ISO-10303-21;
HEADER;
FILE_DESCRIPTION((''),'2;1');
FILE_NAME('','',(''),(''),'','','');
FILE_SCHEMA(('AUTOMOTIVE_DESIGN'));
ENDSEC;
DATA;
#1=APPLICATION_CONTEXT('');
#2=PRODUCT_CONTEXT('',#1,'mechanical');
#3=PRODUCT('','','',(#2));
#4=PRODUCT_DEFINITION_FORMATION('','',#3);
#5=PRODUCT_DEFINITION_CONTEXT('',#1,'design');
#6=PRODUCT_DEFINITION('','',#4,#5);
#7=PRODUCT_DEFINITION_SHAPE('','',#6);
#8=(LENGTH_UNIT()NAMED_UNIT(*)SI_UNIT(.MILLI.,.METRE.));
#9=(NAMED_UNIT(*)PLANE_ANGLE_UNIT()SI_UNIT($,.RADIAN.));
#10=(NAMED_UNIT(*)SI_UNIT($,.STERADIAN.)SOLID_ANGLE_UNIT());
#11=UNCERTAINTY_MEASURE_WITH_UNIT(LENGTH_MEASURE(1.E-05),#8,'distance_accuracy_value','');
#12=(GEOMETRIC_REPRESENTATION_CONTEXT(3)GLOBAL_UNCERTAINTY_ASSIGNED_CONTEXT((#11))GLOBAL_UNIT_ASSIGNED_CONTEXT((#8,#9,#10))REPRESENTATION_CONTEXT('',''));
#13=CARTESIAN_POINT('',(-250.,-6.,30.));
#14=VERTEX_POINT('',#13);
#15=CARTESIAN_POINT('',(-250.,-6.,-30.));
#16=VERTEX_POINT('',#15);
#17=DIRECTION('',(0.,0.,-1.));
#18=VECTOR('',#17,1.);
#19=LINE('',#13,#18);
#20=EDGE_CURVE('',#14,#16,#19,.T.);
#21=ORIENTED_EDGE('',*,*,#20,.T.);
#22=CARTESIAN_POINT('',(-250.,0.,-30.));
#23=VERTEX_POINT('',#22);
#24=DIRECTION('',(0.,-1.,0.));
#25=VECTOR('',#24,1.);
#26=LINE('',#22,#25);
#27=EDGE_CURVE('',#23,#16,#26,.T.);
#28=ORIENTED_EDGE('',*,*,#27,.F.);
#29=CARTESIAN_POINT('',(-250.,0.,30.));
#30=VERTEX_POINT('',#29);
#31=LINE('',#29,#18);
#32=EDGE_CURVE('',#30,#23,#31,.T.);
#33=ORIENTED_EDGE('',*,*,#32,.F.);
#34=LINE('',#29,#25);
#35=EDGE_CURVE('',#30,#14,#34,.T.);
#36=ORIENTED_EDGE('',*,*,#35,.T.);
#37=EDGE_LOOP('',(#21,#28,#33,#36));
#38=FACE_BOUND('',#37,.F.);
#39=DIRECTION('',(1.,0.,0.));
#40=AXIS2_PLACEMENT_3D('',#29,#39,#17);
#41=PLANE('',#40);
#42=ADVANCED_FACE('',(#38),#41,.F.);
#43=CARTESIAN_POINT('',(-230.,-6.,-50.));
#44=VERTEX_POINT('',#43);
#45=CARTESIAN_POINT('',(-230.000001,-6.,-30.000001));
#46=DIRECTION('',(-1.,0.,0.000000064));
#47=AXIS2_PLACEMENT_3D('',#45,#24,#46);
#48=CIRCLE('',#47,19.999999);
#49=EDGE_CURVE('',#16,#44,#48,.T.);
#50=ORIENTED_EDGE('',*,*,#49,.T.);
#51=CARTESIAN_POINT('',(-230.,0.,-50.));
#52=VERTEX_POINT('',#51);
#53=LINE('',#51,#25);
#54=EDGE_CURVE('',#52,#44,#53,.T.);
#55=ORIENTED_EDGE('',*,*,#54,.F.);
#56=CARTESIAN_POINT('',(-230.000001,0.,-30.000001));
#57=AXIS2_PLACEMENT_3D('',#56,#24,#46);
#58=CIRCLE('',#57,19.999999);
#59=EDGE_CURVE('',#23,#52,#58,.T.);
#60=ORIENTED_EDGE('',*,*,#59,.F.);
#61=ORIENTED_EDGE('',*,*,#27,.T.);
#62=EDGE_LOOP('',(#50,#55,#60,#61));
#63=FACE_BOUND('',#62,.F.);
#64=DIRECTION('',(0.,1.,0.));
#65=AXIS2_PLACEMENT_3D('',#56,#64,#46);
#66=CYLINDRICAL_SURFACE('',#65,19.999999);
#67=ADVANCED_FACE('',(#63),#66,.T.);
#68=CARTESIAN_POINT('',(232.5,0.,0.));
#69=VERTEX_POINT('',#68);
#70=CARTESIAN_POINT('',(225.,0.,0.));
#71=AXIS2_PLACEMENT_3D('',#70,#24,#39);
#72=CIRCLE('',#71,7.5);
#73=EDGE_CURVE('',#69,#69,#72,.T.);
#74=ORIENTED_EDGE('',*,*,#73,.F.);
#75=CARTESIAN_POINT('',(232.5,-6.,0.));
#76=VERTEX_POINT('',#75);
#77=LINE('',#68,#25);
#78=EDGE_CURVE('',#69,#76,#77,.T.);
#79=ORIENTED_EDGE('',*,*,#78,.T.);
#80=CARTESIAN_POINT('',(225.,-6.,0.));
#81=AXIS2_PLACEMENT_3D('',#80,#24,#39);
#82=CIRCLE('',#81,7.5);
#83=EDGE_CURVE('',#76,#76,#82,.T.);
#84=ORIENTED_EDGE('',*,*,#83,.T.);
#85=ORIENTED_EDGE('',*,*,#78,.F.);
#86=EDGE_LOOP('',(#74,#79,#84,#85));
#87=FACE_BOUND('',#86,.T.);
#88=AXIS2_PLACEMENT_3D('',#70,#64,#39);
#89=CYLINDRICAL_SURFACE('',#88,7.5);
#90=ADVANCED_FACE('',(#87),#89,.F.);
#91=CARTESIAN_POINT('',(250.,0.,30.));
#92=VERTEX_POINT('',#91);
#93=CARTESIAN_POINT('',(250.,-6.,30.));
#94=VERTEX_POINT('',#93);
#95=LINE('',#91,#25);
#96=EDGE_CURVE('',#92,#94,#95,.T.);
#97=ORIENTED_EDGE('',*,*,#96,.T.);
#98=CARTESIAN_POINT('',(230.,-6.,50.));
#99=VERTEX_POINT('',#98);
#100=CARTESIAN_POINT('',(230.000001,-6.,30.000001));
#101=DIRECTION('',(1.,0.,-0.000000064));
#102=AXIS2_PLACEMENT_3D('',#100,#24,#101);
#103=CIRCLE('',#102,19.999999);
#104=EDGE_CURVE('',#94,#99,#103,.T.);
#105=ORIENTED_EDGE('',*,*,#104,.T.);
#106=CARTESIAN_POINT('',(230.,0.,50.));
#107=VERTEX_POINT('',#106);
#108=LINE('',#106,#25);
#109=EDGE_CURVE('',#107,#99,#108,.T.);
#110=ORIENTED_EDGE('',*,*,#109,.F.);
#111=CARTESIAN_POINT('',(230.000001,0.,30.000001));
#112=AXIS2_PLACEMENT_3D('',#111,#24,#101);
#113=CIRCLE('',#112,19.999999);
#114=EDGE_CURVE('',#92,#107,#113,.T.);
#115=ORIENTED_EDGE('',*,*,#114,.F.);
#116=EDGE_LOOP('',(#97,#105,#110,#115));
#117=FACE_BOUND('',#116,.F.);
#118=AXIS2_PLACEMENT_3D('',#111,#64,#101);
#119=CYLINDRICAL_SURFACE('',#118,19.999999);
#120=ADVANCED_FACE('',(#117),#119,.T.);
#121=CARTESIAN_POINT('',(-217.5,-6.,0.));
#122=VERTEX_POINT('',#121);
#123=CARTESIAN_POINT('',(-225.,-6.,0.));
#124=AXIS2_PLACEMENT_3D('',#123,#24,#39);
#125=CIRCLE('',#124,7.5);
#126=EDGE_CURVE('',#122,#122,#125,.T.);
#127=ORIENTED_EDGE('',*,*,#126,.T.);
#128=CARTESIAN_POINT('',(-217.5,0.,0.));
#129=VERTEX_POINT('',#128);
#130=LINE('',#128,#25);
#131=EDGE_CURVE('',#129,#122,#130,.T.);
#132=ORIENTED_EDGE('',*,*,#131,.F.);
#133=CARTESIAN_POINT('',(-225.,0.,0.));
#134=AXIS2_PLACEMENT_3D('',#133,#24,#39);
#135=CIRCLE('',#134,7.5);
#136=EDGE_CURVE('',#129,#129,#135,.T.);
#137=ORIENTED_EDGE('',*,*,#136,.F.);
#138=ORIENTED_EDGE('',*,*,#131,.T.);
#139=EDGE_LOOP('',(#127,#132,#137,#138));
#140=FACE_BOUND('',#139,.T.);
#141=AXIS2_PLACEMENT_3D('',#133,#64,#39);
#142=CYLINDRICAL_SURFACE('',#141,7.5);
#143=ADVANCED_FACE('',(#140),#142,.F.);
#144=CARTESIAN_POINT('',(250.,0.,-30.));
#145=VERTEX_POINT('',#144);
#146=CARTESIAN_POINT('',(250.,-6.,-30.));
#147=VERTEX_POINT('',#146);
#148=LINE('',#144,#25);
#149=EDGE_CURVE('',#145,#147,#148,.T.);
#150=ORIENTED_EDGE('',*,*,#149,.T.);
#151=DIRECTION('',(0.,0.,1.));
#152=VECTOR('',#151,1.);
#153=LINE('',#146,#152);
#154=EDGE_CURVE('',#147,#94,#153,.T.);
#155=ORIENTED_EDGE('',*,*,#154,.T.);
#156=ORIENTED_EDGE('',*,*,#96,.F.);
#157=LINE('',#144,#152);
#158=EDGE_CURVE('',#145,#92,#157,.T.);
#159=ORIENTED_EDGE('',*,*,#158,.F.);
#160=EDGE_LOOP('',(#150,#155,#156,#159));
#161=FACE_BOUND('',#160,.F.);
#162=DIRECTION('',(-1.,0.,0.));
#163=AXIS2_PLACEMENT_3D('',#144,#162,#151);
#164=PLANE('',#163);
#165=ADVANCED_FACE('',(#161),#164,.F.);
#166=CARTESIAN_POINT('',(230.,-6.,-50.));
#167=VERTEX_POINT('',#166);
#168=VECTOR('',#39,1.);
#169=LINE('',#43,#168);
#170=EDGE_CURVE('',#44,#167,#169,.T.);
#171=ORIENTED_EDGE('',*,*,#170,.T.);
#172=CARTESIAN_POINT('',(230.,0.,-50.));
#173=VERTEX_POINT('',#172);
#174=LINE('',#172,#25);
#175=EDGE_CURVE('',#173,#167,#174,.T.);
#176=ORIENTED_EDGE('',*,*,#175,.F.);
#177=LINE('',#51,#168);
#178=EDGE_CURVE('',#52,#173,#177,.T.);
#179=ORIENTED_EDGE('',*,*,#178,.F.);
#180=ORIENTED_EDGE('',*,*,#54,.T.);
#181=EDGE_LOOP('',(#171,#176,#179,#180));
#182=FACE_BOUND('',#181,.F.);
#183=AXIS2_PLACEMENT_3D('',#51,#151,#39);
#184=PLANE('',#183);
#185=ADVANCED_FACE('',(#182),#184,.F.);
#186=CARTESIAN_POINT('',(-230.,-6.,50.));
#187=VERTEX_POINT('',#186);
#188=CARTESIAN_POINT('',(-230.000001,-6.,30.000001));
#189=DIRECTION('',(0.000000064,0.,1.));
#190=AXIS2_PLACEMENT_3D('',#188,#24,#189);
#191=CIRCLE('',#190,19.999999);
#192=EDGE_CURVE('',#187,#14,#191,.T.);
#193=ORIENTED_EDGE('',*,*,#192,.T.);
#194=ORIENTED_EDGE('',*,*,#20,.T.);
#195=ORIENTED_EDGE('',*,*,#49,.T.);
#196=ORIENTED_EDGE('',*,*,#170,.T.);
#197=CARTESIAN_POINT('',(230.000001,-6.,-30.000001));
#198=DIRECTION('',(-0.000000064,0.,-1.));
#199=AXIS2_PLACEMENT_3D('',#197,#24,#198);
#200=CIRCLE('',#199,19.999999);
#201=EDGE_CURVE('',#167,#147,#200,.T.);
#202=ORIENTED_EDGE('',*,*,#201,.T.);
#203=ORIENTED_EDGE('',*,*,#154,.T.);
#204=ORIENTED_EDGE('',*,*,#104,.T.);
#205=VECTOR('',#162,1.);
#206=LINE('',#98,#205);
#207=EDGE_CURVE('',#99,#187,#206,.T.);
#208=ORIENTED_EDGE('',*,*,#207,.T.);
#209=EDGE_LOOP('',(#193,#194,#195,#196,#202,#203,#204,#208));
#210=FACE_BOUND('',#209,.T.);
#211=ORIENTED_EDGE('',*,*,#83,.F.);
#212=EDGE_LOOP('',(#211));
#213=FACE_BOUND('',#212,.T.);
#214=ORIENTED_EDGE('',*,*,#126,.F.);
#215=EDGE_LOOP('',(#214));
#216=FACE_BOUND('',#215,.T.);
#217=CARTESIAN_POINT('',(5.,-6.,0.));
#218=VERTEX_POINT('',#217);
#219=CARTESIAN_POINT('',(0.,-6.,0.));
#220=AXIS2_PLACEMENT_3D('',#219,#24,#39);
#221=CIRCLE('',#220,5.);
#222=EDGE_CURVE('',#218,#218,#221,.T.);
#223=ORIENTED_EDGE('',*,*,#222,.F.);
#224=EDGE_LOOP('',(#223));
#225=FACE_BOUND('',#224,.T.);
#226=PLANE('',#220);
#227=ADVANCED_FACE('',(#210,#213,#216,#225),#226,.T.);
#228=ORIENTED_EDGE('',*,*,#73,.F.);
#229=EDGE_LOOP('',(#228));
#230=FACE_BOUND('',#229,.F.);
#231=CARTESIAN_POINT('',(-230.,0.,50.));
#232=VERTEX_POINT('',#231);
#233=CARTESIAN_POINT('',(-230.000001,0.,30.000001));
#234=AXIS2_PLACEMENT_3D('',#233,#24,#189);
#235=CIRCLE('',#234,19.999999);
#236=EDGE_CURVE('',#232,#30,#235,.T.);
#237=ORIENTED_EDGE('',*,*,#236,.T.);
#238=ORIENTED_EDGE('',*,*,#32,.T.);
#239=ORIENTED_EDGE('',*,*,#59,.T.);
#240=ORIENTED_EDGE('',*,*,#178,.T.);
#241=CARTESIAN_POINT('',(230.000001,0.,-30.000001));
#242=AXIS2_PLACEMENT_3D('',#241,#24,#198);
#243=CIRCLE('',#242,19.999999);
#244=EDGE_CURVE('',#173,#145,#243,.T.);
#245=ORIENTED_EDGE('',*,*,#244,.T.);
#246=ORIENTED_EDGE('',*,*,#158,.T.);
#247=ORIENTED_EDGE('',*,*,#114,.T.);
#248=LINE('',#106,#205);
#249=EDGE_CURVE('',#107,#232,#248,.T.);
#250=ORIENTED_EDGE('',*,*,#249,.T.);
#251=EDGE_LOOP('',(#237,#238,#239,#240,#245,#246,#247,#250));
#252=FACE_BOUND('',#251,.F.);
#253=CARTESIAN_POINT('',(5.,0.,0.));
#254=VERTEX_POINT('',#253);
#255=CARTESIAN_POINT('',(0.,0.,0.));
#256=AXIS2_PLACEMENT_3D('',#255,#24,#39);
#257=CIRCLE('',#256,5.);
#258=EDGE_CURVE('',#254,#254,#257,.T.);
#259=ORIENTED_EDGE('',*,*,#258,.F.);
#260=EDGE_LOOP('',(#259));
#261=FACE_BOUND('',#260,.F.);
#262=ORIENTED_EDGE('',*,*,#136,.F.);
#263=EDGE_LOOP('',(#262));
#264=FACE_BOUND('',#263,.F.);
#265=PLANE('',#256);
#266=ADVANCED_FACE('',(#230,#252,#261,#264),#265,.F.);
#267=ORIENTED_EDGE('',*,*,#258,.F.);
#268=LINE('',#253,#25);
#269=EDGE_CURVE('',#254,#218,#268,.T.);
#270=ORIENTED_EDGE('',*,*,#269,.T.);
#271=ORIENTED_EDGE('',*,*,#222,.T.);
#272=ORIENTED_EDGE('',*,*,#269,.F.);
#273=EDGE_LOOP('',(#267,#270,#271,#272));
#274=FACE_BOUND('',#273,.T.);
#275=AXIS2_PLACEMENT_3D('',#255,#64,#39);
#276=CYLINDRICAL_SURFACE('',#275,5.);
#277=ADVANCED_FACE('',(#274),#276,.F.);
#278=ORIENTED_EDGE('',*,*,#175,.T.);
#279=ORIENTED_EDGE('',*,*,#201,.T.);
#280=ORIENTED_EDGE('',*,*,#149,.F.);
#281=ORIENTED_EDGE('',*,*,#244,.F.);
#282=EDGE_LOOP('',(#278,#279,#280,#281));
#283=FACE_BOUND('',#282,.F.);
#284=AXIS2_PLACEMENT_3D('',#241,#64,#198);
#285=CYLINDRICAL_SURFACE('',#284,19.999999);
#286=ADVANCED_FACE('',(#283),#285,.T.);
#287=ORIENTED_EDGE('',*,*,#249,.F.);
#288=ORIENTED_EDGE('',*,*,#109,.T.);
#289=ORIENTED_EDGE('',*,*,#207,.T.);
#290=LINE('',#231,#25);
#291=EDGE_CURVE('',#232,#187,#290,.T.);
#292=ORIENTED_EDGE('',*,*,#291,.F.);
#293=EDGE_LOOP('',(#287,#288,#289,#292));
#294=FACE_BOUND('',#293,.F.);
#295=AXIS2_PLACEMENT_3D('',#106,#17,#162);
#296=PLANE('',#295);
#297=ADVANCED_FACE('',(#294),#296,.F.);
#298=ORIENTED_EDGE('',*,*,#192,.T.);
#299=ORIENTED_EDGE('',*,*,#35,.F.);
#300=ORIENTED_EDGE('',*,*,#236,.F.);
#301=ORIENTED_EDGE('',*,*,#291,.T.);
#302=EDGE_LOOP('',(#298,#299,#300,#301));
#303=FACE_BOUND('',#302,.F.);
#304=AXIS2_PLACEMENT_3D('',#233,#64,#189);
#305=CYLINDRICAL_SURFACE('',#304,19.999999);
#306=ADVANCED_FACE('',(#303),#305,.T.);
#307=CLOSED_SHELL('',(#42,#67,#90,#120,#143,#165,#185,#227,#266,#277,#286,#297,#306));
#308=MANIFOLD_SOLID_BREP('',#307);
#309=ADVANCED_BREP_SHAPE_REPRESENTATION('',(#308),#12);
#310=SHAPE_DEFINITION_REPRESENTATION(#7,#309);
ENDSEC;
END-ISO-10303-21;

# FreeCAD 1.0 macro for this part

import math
import FreeCAD as App
import Part
import Sketcher
from FreeCAD import Vector

doc = App.newDocument("Part")
body = doc.addObject("PartDesign::Body", "Body")

# Sketch on XZ plane
sketch1 = body.newObject("Sketcher::SketchObject", "Sketch")
sketch1.AttachmentSupport = (doc.getObject("XZ_Plane"), [""])
sketch1.MapMode = "FlatFace"
sketch1.addGeometry([
    Part.ArcOfCircle(Part.Circle(Vector(-230, 30, 0), Vector(0, 0, 1), 20), math.radians(90), math.radians(180)),  # 0
    Part.LineSegment(Vector(-250, 30, 0), Vector(-250, -30, 0)),  # 1
    Part.ArcOfCircle(Part.Circle(Vector(-230, -30, 0), Vector(0, 0, 1), 20), math.radians(180), math.radians(270)),  # 2
    Part.LineSegment(Vector(-230, -50, 0), Vector(230, -50, 0)),  # 3
    Part.ArcOfCircle(Part.Circle(Vector(230, -30, 0), Vector(0, 0, 1), 20), math.radians(-90), math.radians(0)),  # 4
    Part.LineSegment(Vector(250, -30, 0), Vector(250, 30, 0)),  # 5
    Part.ArcOfCircle(Part.Circle(Vector(230, 30, 0), Vector(0, 0, 1), 20), math.radians(0), math.radians(90)),  # 6
    Part.LineSegment(Vector(230, 50, 0), Vector(-230, 50, 0)),  # 7
    Part.Circle(Vector(-225, 0, 0), Vector(0, 0, 1), 8),  # 8
    Part.Circle(Vector(0, 0, 0), Vector(0, 0, 1), 5),  # 9
    Part.Circle(Vector(225, 0, 0), Vector(0, 0, 1), 8),  # 10
], False)
sketch1.addConstraint([
    Sketcher.Constraint("Tangent", 0, 2, 1, 1),
    Sketcher.Constraint("Tangent", 1, 2, 2, 1),
    Sketcher.Constraint("Tangent", 2, 2, 3, 1),
    Sketcher.Constraint("Tangent", 3, 2, 4, 1),
    Sketcher.Constraint("Tangent", 4, 2, 5, 1),
    Sketcher.Constraint("Tangent", 5, 2, 6, 1),
    Sketcher.Constraint("Tangent", 6, 2, 7, 1),
    Sketcher.Constraint("Tangent", 7, 2, 0, 1),
    Sketcher.Constraint("Vertical", 1),
    Sketcher.Constraint("Horizontal", 3),
    Sketcher.Constraint("Vertical", 5),
    Sketcher.Constraint("Horizontal", 7),
    Sketcher.Constraint("Coincident", 9, 3, -1, 1),
    Sketcher.Constraint("Equal", 0, 2),
    Sketcher.Constraint("Equal", 2, 4),
    Sketcher.Constraint("Equal", 4, 6),
    Sketcher.Constraint("Equal", 8, 10),
    Sketcher.Constraint("Symmetric", 0, 3, 4, 3, -1, 1),
    Sketcher.Constraint("Symmetric", 8, 3, 10, 3, -1, 1),
    Sketcher.Constraint("PointOnObject", 8, 3, -1),
    Sketcher.Constraint("Diameter", 8, 15.0),
    Sketcher.Constraint("Diameter", 9, 10.0),
    Sketcher.Constraint("Radius", 0, 19.999999),
    Sketcher.Constraint("DistanceX", 3, 1, 3, 2, 460.0),
    Sketcher.Constraint("DistanceY", 1, 2, 1, 1, 60.0),
    Sketcher.Constraint("DistanceX", 8, 3, -1, 1, 225.0),
])
pad1 = body.newObject("PartDesign::Pad", "Pad")
pad1.Profile = sketch1
pad1.Length = 6

doc.recompute()
